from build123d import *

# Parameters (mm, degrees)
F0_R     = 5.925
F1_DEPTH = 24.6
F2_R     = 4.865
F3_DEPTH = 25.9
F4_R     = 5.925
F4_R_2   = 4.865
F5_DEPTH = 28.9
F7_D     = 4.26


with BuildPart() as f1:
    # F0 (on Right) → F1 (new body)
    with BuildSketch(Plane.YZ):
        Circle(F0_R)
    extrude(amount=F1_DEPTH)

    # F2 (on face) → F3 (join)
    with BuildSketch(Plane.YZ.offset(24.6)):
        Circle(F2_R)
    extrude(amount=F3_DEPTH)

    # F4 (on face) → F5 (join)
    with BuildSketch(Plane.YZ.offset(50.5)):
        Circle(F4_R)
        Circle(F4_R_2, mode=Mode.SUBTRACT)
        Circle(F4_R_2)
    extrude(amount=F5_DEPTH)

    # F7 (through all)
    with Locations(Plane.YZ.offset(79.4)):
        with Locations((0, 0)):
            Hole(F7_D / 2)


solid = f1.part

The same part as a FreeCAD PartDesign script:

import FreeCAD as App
import Part
import Sketcher
from FreeCAD import Vector
Q = App.Units.Quantity

doc = App.newDocument("Part")
body = doc.addObject("PartDesign::Body", "Body")

sketch1 = doc.addObject("Sketcher::SketchObject", "Sketch")
body.addObject(sketch1)
sketch1.AttachmentSupport = (doc.YZ_Plane, [""])
sketch1.MapMode = "FlatFace"
sketch1.addGeometry(Part.Circle(Vector(0, 0, 0), Vector(0, 0, 1), 6), False)
sketch1.addConstraint([
    Sketcher.Constraint("Coincident", 0, 3, -1, 1),
    Sketcher.Constraint("Diameter", 0, Q("11.85 mm")),
])
pad1 = doc.addObject("PartDesign::Pad", "Pad")
body.addObject(pad1)
pad1.Profile = sketch1
pad1.Length = 24.6

sketch2 = doc.addObject("Sketcher::SketchObject", "Sketch001")
body.addObject(sketch2)
sketch2.AttachmentSupport = (doc.YZ_Plane, [""])
sketch2.MapMode = "FlatFace"
sketch2.AttachmentOffset = App.Placement(Vector(0, 0, 24.6), App.Rotation())
sketch2.addGeometry(Part.Circle(Vector(0, 0, 0), Vector(0, 0, 1), 4.9), False)
sketch2.addConstraint([
    Sketcher.Constraint("Coincident", 0, 3, -1, 1),
    Sketcher.Constraint("Diameter", 0, Q("9.73 mm")),
])
pad2 = doc.addObject("PartDesign::Pad", "Pad001")
body.addObject(pad2)
pad2.Profile = sketch2
pad2.Length = 25.9

sketch3 = doc.addObject("Sketcher::SketchObject", "Sketch002")
body.addObject(sketch3)
sketch3.AttachmentSupport = (doc.YZ_Plane, [""])
sketch3.MapMode = "FlatFace"
sketch3.AttachmentOffset = App.Placement(Vector(0, 0, 50.5), App.Rotation())
sketch3.addGeometry(Part.Circle(Vector(0, 0, 0), Vector(0, 0, 1), 6), False)
sketch3.addConstraint([
    Sketcher.Constraint("Coincident", 0, 3, -1, 1),
    Sketcher.Constraint("Diameter", 0, Q("11.85 mm")),
])
pad3 = doc.addObject("PartDesign::Pad", "Pad002")
body.addObject(pad3)
pad3.Profile = sketch3
pad3.Length = 28.9

sketch4 = doc.addObject("Sketcher::SketchObject", "Sketch003")
body.addObject(sketch4)
sketch4.AttachmentSupport = (doc.YZ_Plane, [""])
sketch4.MapMode = "FlatFace"
sketch4.AttachmentOffset = App.Placement(Vector(0, 0, 79.4), App.Rotation())
sketch4.addGeometry(Part.Circle(Vector(0, 0, 0), Vector(0, 0, 1), 2.1), False)
sketch4.addConstraint([
    Sketcher.Constraint("Coincident", 0, 3, -1, 1),
    Sketcher.Constraint("Diameter", 0, Q("4.26 mm")),
])
doc.recompute()
hole = doc.addObject("PartDesign::Hole", "Hole")
body.addObject(hole)
hole.Profile = sketch4
hole.ThreadType = "None"
hole.Diameter = 4.26
hole.DepthType = "ThroughAll"

doc.recompute()
